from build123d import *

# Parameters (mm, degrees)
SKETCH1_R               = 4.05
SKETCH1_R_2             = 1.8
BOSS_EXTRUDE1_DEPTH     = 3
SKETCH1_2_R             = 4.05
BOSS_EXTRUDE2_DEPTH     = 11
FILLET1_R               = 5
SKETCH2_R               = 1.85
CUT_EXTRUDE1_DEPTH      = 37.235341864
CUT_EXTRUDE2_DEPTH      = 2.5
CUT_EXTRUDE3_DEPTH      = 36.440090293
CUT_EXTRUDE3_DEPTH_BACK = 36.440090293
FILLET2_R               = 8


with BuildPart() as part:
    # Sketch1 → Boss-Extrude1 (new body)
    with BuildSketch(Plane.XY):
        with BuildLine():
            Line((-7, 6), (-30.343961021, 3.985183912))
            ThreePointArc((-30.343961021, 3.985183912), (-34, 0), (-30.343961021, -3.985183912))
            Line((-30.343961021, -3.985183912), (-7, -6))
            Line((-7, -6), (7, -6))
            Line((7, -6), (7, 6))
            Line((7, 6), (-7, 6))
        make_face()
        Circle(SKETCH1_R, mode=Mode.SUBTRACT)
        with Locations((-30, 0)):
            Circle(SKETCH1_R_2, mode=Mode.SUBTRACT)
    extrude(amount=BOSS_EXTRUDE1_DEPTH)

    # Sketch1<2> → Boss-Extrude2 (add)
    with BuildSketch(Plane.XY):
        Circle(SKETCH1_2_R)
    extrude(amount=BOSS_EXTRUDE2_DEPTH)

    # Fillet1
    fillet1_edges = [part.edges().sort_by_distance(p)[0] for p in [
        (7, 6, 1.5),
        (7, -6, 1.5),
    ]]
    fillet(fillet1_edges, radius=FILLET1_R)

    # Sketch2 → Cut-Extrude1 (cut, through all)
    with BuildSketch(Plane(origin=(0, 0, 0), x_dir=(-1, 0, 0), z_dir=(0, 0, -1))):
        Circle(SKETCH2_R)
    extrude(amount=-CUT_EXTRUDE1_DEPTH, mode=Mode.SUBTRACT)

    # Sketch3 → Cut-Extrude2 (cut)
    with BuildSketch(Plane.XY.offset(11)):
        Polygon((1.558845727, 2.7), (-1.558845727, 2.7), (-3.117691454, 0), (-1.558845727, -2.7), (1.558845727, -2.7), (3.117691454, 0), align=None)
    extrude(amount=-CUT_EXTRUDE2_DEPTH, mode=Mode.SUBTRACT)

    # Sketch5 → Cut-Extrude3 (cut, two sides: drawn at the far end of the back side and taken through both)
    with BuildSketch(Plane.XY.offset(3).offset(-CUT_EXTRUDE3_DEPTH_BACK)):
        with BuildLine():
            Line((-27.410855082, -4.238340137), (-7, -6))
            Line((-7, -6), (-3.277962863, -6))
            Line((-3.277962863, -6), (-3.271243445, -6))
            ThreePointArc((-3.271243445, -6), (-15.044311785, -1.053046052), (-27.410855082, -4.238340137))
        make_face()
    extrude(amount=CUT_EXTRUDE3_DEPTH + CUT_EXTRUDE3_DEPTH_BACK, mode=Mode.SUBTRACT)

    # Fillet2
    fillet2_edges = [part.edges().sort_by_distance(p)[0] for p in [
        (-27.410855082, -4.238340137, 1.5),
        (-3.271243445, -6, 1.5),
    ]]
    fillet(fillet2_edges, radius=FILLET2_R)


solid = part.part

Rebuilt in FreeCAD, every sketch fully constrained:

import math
import FreeCAD as App
import Part
import Sketcher
from FreeCAD import Vector
Q = App.Units.Quantity


def edges_at(feature, points):
    """Names of the edges that pass closest to the given points."""
    edges = feature.Shape.Edges
    near = lambda p: min(range(len(edges)), key=lambda i: edges[i].distToShape(Part.Vertex(*p))[0])
    return sorted({f"Edge{near(p) + 1}" for p in points})


def add_polygon(sketch, points):
    """Adds a closed chain of lines whose ends are joined by coincident constraints."""
    first, n = sketch.GeometryCount, len(points)
    for a, b in zip(points, points[1:] + points[:1]):
        sketch.addGeometry(Part.LineSegment(App.Vector(*a, 0), App.Vector(*b, 0)), False)
    for i in range(n):
        sketch.addConstraint(Sketcher.Constraint("Coincident", first + i, 2, first + (i + 1) % n, 1))

doc = App.newDocument("Part")
params = doc.addObject("Spreadsheet::Sheet", "Params")
for row, (alias, value) in enumerate([
    ("sketch1_radius", "4 mm"),
    ("sketch1_diameter", "3.6 mm"),
    ("sketch1_diameter2", "8.1 mm"),
    ("sketch1_width", "14 mm"),
    ("sketch1_height", "12 mm"),
    ("pad1_length", "3 mm"),
    ("sketch2_diameter", "8.1 mm"),
    ("pad2_length", "11 mm"),
    ("fillet_radius", "5 mm"),
    ("sketch3_diameter", "3.7 mm"),
    ("pocket2_length", "2.5 mm"),
    ("sketch5_radius", "20 mm"),
    ("fillet2_radius", "8 mm"),
], start=1):
    params.set(f"A{row}", alias)
    params.set(f"B{row}", "=" + value)
    params.setAlias(f"B{row}", alias)

body = doc.addObject("PartDesign::Body", "Body")

# Sketch on XY plane
sketch1 = body.newObject("Sketcher::SketchObject", "Sketch")
sketch1.AttachmentSupport = (doc.getObject("XY_Plane"), [""])
sketch1.MapMode = "FlatFace"
sketch1.addGeometry([
    Part.LineSegment(Vector(-7, 6, 0), Vector(-30.3, 4, 0)),  # 0
    Part.ArcOfCircle(Part.Circle(Vector(-30, 0, 0), Vector(0, 0, 1), 4), math.radians(95), math.radians(265)),  # 1
    Part.LineSegment(Vector(-30.3, -4, 0), Vector(-7, -6, 0)),  # 2
    Part.LineSegment(Vector(-7, -6, 0), Vector(7, -6, 0)),  # 3
    Part.LineSegment(Vector(7, -6, 0), Vector(7, 6, 0)),  # 4
    Part.LineSegment(Vector(7, 6, 0), Vector(-7, 6, 0)),  # 5
    Part.Circle(Vector(-30, 0, 0), Vector(0, 0, 1), 1.8),  # 6
    Part.Circle(Vector(0, 0, 0), Vector(0, 0, 1), 4),  # 7
], False)
sketch1.addConstraint([
    Sketcher.Constraint("Tangent", 0, 2, 1, 1),
    Sketcher.Constraint("Tangent", 1, 2, 2, 1),
    Sketcher.Constraint("Coincident", 2, 2, 3, 1),
    Sketcher.Constraint("Coincident", 3, 2, 4, 1),
    Sketcher.Constraint("Coincident", 4, 2, 5, 1),
    Sketcher.Constraint("Coincident", 5, 2, 0, 1),
    Sketcher.Constraint("Horizontal", 3),
    Sketcher.Constraint("Vertical", 4),
    Sketcher.Constraint("Horizontal", 5),
    Sketcher.Constraint("Coincident", 7, 3, -1, 1),
    Sketcher.Constraint("Coincident", 6, 3, 1, 3),
    Sketcher.Constraint("Symmetric", 2, 2, 4, 2, -1, 1),
    Sketcher.Constraint("Symmetric", 0, 2, 1, 2, -1),
    Sketcher.Constraint("Radius", 1, 4.0),
    Sketcher.Constraint("Diameter", 6, 3.6),
    Sketcher.Constraint("Diameter", 7, 8.1),
    Sketcher.Constraint("DistanceX", 3, 1, 3, 2, 14.0),
    Sketcher.Constraint("DistanceY", 4, 1, 4, 2, 12.0),
    Sketcher.Constraint("DistanceX", 1, 3, -1, 1, 30.0),
])
sketch1.setExpression("Constraints[13]", "Params.sketch1_radius")
sketch1.setExpression("Constraints[14]", "Params.sketch1_diameter")
sketch1.setExpression("Constraints[15]", "Params.sketch1_diameter2")
sketch1.setExpression("Constraints[16]", "Params.sketch1_width")
sketch1.setExpression("Constraints[17]", "Params.sketch1_height")
pad1 = body.newObject("PartDesign::Pad", "Pad")
pad1.Profile = sketch1
pad1.setExpression("Length", "Params.pad1_length")

# Sketch on XY plane
sketch2 = body.newObject("Sketcher::SketchObject", "Sketch001")
sketch2.AttachmentSupport = (doc.getObject("XY_Plane"), [""])
sketch2.MapMode = "FlatFace"
sketch2.addGeometry(Part.Circle(Vector(0, 0, 0), Vector(0, 0, 1), 4), False)
sketch2.addConstraint([
    Sketcher.Constraint("Coincident", 0, 3, -1, 1),
    Sketcher.Constraint("Diameter", 0, 8.1),
])
sketch2.setExpression("Constraints[1]", "Params.sketch2_diameter")
pad2 = body.newObject("PartDesign::Pad", "Pad001")
pad2.Profile = sketch2
pad2.setExpression("Length", "Params.pad2_length")
doc.recompute()

fillet = body.newObject("PartDesign::Fillet", "Fillet")
fillet.Base = (pad2, edges_at(pad2, [(7, 6, 1.5), (7, -6, 1.5)]))
fillet.setExpression("Radius", "Params.fillet_radius")

# Sketch on XY plane
sketch3 = body.newObject("Sketcher::SketchObject", "Sketch002")
sketch3.AttachmentSupport = (doc.getObject("XY_Plane"), [""])
sketch3.MapMode = "FlatFace"
sketch3.addGeometry(Part.Circle(Vector(0, 0, 0), Vector(0, 0, 1), 1.9), False)
sketch3.addConstraint([
    Sketcher.Constraint("Coincident", 0, 3, -1, 1),
    Sketcher.Constraint("Diameter", 0, 3.7),
])
sketch3.setExpression("Constraints[1]", "Params.sketch3_diameter")
pocket1 = body.newObject("PartDesign::Pocket", "Pocket")
pocket1.Profile = sketch3
pocket1.Type = "ThroughAll"
pocket1.Reversed = True

# Sketch on XY plane
sketch4 = body.newObject("Sketcher::SketchObject", "Sketch003")
sketch4.AttachmentSupport = (doc.getObject("XY_Plane"), [""])
sketch4.MapMode = "FlatFace"
sketch4.AttachmentOffset = App.Placement(Vector(0, 0, 11), App.Rotation())
add_polygon(sketch4, [(1.6, 2.7), (-1.6, 2.7), (-3.1, 0), (-1.6, -2.7), (1.6, -2.7), (3.1, 0)])  # lines 0-5
sketch4.addConstraint([
    Sketcher.Constraint("Horizontal", 0),
    Sketcher.Constraint("Horizontal", 3),
    Sketcher.Constraint("Symmetric", 0, 2, 3, 2, -1, 1),
    Sketcher.Constraint("Symmetric", 1, 2, 4, 2, -1, 1),
    Sketcher.Constraint("PointOnObject", 1, 2, -1),
    Sketcher.Constraint("Parallel", 2, 5),
    Sketcher.Constraint("Vertical", 0, 2, 2, 2),
    Sketcher.Constraint("Angle", 1, Q("-120 deg")),
    Sketcher.Constraint("DistanceY", -1, 1, 0, 2, 2.7),
    Sketcher.Constraint("DistanceX", 0, 2, 0, 1, 3.117691),
])
pocket2 = body.newObject("PartDesign::Pocket", "Pocket001")
pocket2.Profile = sketch4
pocket2.setExpression("Length", "Params.pocket2_length")

# Sketch on XY plane
sketch5 = body.newObject("Sketcher::SketchObject", "Sketch004")
sketch5.AttachmentSupport = (doc.getObject("XY_Plane"), [""])
sketch5.MapMode = "FlatFace"
sketch5.AttachmentOffset = App.Placement(Vector(0, 0, 3), App.Rotation())
sketch5.addGeometry([
    Part.LineSegment(Vector(-27.4, -4.2, 0), Vector(-7, -6, 0)),
    Part.LineSegment(Vector(-7, -6, 0), Vector(-3.3, -6, 0)),
    Part.ArcOfCircle(Part.Circle(Vector(-16.5, -21, 0), Vector(0, 0, 1), 20), math.radians(49), math.radians(123)),
], False)
sketch5.addConstraint([
    Sketcher.Constraint("Coincident", 0, 2, 1, 1),
    Sketcher.Constraint("Coincident", 1, 2, 2, 1),
    Sketcher.Constraint("Coincident", 2, 2, 0, 1),
    Sketcher.Constraint("Horizontal", 1),
    Sketcher.Constraint("Radius", 2, 20.0),
    Sketcher.Constraint("DistanceY", 2, 3, -1, 1, 21.0),
    Sketcher.Constraint("DistanceX", 0, 2, -1, 1, 7.0),
    Sketcher.Constraint("DistanceY", 0, 2, -1, 1, 6.0),
    Sketcher.Constraint("DistanceX", 2, 3, -1, 1, 16.5),
    Sketcher.Constraint("Distance", 0, 20.486738),
])
sketch5.setExpression("Constraints[4]", "Params.sketch5_radius")
pocket3 = body.newObject("PartDesign::Pocket", "Pocket002")
pocket3.Profile = sketch5
pocket3.Type = "ThroughAll"
pocket3.Midplane = True
doc.recompute()

fillet2 = body.newObject("PartDesign::Fillet", "Fillet001")
fillet2.Base = (pocket3, edges_at(pocket3, [(-27.411, -4.238, 1.5), (-3.271, -6, 1.5)]))
fillet2.setExpression("Radius", "Params.fillet2_radius")

doc.recompute()
